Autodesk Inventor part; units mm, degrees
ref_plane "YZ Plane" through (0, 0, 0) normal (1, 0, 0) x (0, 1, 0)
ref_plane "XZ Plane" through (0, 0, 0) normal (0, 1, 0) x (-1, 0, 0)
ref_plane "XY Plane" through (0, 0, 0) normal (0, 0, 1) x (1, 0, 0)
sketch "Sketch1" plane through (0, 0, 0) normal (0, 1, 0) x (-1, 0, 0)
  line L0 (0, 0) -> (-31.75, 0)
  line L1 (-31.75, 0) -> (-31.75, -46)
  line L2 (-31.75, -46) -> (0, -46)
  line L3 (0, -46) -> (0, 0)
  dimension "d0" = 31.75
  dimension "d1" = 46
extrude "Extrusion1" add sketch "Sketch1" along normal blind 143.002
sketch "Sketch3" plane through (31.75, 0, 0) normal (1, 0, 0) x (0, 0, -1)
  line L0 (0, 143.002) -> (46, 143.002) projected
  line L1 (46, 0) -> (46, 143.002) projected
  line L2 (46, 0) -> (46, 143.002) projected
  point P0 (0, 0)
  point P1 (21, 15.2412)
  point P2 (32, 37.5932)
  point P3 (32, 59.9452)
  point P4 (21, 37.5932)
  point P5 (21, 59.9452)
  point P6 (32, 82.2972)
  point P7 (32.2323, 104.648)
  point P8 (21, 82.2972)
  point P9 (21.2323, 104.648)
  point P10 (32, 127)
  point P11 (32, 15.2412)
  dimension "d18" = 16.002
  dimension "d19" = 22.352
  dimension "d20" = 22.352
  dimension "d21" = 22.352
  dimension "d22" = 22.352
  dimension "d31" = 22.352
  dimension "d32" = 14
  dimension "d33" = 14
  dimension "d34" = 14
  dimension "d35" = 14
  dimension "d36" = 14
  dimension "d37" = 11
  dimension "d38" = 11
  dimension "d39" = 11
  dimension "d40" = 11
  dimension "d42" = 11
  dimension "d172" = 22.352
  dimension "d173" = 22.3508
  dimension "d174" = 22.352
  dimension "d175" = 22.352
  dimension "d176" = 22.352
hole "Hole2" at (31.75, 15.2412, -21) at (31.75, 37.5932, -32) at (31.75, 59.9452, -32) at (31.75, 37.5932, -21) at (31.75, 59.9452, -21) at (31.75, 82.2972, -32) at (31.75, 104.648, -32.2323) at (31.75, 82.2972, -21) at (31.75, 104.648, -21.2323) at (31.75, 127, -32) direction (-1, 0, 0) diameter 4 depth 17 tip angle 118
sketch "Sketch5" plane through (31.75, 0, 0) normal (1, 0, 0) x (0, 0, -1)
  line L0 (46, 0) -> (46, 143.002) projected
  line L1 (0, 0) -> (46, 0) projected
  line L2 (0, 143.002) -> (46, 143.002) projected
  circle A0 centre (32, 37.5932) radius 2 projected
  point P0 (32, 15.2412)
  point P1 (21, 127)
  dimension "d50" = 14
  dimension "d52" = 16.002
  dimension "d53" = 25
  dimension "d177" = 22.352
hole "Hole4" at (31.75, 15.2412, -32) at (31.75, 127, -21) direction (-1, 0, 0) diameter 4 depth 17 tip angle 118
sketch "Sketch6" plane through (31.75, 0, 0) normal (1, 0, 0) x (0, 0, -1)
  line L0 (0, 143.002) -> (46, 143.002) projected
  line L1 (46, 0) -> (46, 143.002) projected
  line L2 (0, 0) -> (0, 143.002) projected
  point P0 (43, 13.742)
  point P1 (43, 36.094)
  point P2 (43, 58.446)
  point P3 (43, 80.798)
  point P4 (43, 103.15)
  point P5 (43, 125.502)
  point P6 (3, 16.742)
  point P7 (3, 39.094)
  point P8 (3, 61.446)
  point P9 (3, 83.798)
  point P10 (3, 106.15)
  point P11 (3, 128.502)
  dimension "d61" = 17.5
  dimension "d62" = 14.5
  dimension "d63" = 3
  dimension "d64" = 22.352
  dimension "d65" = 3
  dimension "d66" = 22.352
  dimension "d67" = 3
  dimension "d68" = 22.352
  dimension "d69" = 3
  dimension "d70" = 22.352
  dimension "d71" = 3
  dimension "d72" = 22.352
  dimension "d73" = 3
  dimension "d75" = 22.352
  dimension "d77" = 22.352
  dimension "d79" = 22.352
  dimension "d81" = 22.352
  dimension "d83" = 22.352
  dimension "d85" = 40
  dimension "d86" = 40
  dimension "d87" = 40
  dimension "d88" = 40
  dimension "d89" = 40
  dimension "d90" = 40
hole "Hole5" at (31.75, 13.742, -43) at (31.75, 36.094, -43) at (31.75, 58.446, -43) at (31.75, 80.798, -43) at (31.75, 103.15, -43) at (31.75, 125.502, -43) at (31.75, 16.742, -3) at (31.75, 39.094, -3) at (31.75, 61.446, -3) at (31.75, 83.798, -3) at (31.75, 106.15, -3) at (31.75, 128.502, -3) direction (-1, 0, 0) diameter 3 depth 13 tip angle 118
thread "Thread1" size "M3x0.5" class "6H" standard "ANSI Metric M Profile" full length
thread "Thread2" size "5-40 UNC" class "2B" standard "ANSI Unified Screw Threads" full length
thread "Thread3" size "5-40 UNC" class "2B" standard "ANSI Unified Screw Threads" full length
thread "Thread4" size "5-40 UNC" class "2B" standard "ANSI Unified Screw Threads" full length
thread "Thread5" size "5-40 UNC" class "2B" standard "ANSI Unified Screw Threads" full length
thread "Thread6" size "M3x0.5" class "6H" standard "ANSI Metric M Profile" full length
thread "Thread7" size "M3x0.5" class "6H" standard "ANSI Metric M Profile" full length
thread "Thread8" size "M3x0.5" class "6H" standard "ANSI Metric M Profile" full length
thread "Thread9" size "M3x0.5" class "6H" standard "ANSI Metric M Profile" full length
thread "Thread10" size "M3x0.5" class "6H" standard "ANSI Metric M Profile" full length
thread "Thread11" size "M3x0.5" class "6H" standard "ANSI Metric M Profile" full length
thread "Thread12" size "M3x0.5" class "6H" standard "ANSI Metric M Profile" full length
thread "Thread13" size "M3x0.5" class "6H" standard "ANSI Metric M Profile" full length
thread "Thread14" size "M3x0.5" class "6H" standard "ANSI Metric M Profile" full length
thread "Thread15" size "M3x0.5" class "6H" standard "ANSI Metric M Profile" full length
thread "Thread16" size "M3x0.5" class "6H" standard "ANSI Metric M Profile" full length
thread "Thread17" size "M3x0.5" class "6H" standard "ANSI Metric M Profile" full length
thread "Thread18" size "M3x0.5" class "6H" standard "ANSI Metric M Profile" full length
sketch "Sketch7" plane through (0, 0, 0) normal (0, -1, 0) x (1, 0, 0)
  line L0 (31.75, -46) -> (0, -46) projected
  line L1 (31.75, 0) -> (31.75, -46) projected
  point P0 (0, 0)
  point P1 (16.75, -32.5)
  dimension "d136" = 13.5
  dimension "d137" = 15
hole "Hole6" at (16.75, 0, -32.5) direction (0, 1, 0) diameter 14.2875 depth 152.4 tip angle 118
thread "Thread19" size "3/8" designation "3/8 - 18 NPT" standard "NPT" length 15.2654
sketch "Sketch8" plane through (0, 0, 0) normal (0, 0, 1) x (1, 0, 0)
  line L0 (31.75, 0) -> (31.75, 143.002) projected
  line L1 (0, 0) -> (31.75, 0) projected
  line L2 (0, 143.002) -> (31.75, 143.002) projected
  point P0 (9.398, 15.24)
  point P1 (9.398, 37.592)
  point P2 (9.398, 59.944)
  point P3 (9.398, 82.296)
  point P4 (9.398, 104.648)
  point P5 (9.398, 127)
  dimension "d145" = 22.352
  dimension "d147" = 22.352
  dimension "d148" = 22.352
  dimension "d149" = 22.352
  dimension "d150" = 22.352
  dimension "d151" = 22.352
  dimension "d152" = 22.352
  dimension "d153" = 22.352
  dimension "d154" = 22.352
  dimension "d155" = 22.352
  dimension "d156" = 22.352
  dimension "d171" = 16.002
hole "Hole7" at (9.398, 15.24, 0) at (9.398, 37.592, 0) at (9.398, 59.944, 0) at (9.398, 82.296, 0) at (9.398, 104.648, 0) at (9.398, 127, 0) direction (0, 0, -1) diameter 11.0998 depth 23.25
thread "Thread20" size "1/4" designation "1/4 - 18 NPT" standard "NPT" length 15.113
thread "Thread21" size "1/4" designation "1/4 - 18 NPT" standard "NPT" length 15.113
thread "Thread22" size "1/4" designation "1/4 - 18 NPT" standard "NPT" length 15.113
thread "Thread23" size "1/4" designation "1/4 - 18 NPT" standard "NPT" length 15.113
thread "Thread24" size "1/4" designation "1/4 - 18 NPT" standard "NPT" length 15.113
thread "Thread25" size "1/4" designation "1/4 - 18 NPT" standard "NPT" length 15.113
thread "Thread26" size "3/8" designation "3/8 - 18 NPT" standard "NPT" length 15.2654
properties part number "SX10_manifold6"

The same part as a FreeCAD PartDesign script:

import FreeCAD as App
import Part
import Sketcher
Q = App.Units.Quantity

doc = App.newDocument("Part")
params = doc.addObject("Spreadsheet::Sheet", "Params")
for row, (alias, value) in enumerate([
    ("sketch1_width", "1.25 in"),
    ("pad1_length", "5.63 in"),
    ("hole_diameter", "4 mm"),
    ("hole_depth", "0.6692913 in"),
    ("hole2_diameter", "4 mm"),
    ("hole2_depth", "0.6692913 in"),
    ("hole3_diameter", "0.1181102 in"),
    ("hole3_depth", "0.511811 in"),
    ("sketch5_diameter", "0.5625 in"),
    ("hole4_diameter", "0.5625 in"),
    ("hole4_depth", "6 in"),
    ("sketch6_diameter", "0.437 in"),
    ("hole5_diameter", "0.437 in"),
    ("hole5_depth", "23.25 mm"),
], start=1):
    params.set(f"A{row}", alias)
    params.set(f"B{row}", "=" + value)
    params.setAlias(f"B{row}", alias)

body = doc.addObject("PartDesign::Body", "Body")

sketch1 = body.newObject("Sketcher::SketchObject", "Sketch")
sketch1.AttachmentSupport = (doc.getObject("XZ_Plane"), [""])
sketch1.MapMode = "FlatFace"
sketch1.addGeometry([
    Part.LineSegment(App.Vector(0, -46, 0), App.Vector(0, 0, 0)),
    Part.LineSegment(App.Vector(0, 0, 0), App.Vector(31.75, 0, 0)),
    Part.LineSegment(App.Vector(31.75, 0, 0), App.Vector(31.75, -46, 0)),
    Part.LineSegment(App.Vector(31.75, -46, 0), App.Vector(0, -46, 0)),
], False)
sketch1.addConstraint([
    Sketcher.Constraint("Coincident", 0, 2, 1, 1),
    Sketcher.Constraint("Coincident", 1, 2, 2, 1),
    Sketcher.Constraint("Coincident", 2, 2, 3, 1),
    Sketcher.Constraint("Coincident", 3, 2, 0, 1),
    Sketcher.Constraint("Vertical", 0),
    Sketcher.Constraint("Horizontal", 1),
    Sketcher.Constraint("Vertical", 2),
    Sketcher.Constraint("Horizontal", 3),
    Sketcher.Constraint("Coincident", 0, 2, -1, 1),
    Sketcher.Constraint("DistanceX", 1, 1, 1, 2, Q("1.25 in")),
    Sketcher.Constraint("DistanceY", 0, 1, 0, 2, 46.0),
])
sketch1.setExpression("Constraints[9]", "Params.sketch1_width")
pad1 = body.newObject("PartDesign::Pad", "Pad")
pad1.Profile = sketch1
pad1.setExpression("Length", "Params.pad1_length")
pad1.Reversed = True

sketch2 = body.newObject("Sketcher::SketchObject", "Sketch001")
sketch2.AttachmentSupport = (doc.getObject("YZ_Plane"), [""])
sketch2.MapMode = "FlatFace"
sketch2.AttachmentOffset = App.Placement(App.Vector(0, 0, 1.25 * 25.4), App.Rotation())
sketch2.addGeometry([
    Part.Circle(App.Vector(15.2412, -21, 0), App.Vector(0, 0, 1), 2),
    Part.Circle(App.Vector(37.5932, -32, 0), App.Vector(0, 0, 1), 2),
    Part.Circle(App.Vector(59.9452, -32, 0), App.Vector(0, 0, 1), 2),
    Part.Circle(App.Vector(37.5932, -21, 0), App.Vector(0, 0, 1), 2),
    Part.Circle(App.Vector(59.9452, -21, 0), App.Vector(0, 0, 1), 2),
    Part.Circle(App.Vector(82.2972, -32, 0), App.Vector(0, 0, 1), 2),
    Part.Circle(App.Vector(104.648, -32.2323, 0), App.Vector(0, 0, 1), 2),
    Part.Circle(App.Vector(82.2972, -21, 0), App.Vector(0, 0, 1), 2),
    Part.Circle(App.Vector(104.648, -21.2323, 0), App.Vector(0, 0, 1), 2),
    Part.Circle(App.Vector(127, -32, 0), App.Vector(0, 0, 1), 2),
], False)
sketch2.addConstraint([
    Sketcher.Constraint("Equal", 0, 1),
    Sketcher.Constraint("Equal", 1, 2),
    Sketcher.Constraint("Equal", 2, 3),
    Sketcher.Constraint("Equal", 3, 4),
    Sketcher.Constraint("Equal", 4, 5),
    Sketcher.Constraint("Equal", 5, 6),
    Sketcher.Constraint("Equal", 6, 7),
    Sketcher.Constraint("Equal", 7, 8),
    Sketcher.Constraint("Equal", 8, 9),
    Sketcher.Constraint("Horizontal", 1, 3, 2, 3),
    Sketcher.Constraint("Horizontal", 0, 3, 3, 3),
    Sketcher.Constraint("Horizontal", 3, 3, 4, 3),
    Sketcher.Constraint("Horizontal", 2, 3, 5, 3),
    Sketcher.Constraint("Horizontal", 4, 3, 7, 3),
    Sketcher.Constraint("Horizontal", 5, 3, 9, 3),
    Sketcher.Constraint("Vertical", 1, 3, 3, 3),
    Sketcher.Constraint("Vertical", 2, 3, 4, 3),
    Sketcher.Constraint("Vertical", 5, 3, 7, 3),
    Sketcher.Constraint("Vertical", 6, 3, 8, 3),
    Sketcher.Constraint("DistanceX", -1, 1, 9, 3, Q("5 in")),
    Sketcher.Constraint("Diameter", 0, 4.0),
    Sketcher.Constraint("DistanceX", -1, 1, 6, 3, Q("4.12 in")),
    Sketcher.Constraint("DistanceX", 0, 3, 1, 3, Q("0.88 in")),
    Sketcher.Constraint("DistanceX", 1, 3, 2, 3, Q("0.88 in")),
    Sketcher.Constraint("DistanceX", 2, 3, 5, 3, Q("0.88 in")),
    Sketcher.Constraint("DistanceY", 6, 3, -1, 1, Q("1.269 in")),
    Sketcher.Constraint("DistanceX", -1, 1, 0, 3, 15.2412),
    Sketcher.Constraint("DistanceY", 0, 3, -1, 1, 21.0),
    Sketcher.Constraint("DistanceY", 1, 3, -1, 1, 32.0),
    Sketcher.Constraint("DistanceY", 8, 3, -1, 1, 21.2323),
])
doc.recompute()
hole = body.newObject("PartDesign::Hole", "Hole")
hole.Profile = sketch2
hole.ThreadType = "None"
hole.setExpression("Diameter", "Params.hole_diameter")
hole.DepthType = "Dimension"
hole.setExpression("Depth", "Params.hole_depth")
hole.DrillPoint = "Angled"
hole.DrillPointAngle = 118

sketch3 = body.newObject("Sketcher::SketchObject", "Sketch002")
sketch3.AttachmentSupport = (doc.getObject("YZ_Plane"), [""])
sketch3.MapMode = "FlatFace"
sketch3.AttachmentOffset = App.Placement(App.Vector(0, 0, 1.25 * 25.4), App.Rotation())
sketch3.addGeometry([
    Part.Circle(App.Vector(15.2412, -32, 0), App.Vector(0, 0, 1), 2),
    Part.Circle(App.Vector(127, -21, 0), App.Vector(0, 0, 1), 2),
], False)
sketch3.addConstraint([
    Sketcher.Constraint("Equal", 0, 1),
    Sketcher.Constraint("DistanceX", -1, 1, 1, 3, Q("5 in")),
    Sketcher.Constraint("Diameter", 0, 4.0),
    Sketcher.Constraint("DistanceX", -1, 1, 0, 3, 15.2412),
    Sketcher.Constraint("DistanceY", 0, 3, -1, 1, 32.0),
    Sketcher.Constraint("DistanceY", 1, 3, -1, 1, 21.0),
])
doc.recompute()
hole2 = body.newObject("PartDesign::Hole", "Hole001")
hole2.Profile = sketch3
hole2.ThreadType = "None"
hole2.setExpression("Diameter", "Params.hole2_diameter")
hole2.DepthType = "Dimension"
hole2.setExpression("Depth", "Params.hole2_depth")
hole2.DrillPoint = "Angled"
hole2.DrillPointAngle = 118

sketch4 = body.newObject("Sketcher::SketchObject", "Sketch003")
sketch4.AttachmentSupport = (doc.getObject("YZ_Plane"), [""])
sketch4.MapMode = "FlatFace"
sketch4.AttachmentOffset = App.Placement(App.Vector(0, 0, 1.25 * 25.4), App.Rotation())
sketch4.addGeometry([
    Part.Circle(App.Vector(13.742, -43, 0), App.Vector(0, 0, 1), 1.5),
    Part.Circle(App.Vector(36.094, -43, 0), App.Vector(0, 0, 1), 1.5),
    Part.Circle(App.Vector(58.446, -43, 0), App.Vector(0, 0, 1), 1.5),
    Part.Circle(App.Vector(80.798, -43, 0), App.Vector(0, 0, 1), 1.5),
    Part.Circle(App.Vector(103.15, -43, 0), App.Vector(0, 0, 1), 1.5),
    Part.Circle(App.Vector(125.502, -43, 0), App.Vector(0, 0, 1), 1.5),
    Part.Circle(App.Vector(16.742, -3, 0), App.Vector(0, 0, 1), 1.5),
    Part.Circle(App.Vector(39.094, -3, 0), App.Vector(0, 0, 1), 1.5),
    Part.Circle(App.Vector(61.446, -3, 0), App.Vector(0, 0, 1), 1.5),
    Part.Circle(App.Vector(83.798, -3, 0), App.Vector(0, 0, 1), 1.5),
    Part.Circle(App.Vector(106.15, -3, 0), App.Vector(0, 0, 1), 1.5),
    Part.Circle(App.Vector(128.502, -3, 0), App.Vector(0, 0, 1), 1.5),
], False)
sketch4.addConstraint([
    Sketcher.Constraint("Equal", 0, 1),
    Sketcher.Constraint("Equal", 1, 2),
    Sketcher.Constraint("Equal", 2, 3),
    Sketcher.Constraint("Equal", 3, 4),
    Sketcher.Constraint("Equal", 4, 5),
    Sketcher.Constraint("Equal", 5, 6),
    Sketcher.Constraint("Equal", 6, 7),
    Sketcher.Constraint("Equal", 7, 8),
    Sketcher.Constraint("Equal", 8, 9),
    Sketcher.Constraint("Equal", 9, 10),
    Sketcher.Constraint("Equal", 10, 11),
    Sketcher.Constraint("Horizontal", 0, 3, 1, 3),
    Sketcher.Constraint("Horizontal", 1, 3, 2, 3),
    Sketcher.Constraint("Horizontal", 2, 3, 3, 3),
    Sketcher.Constraint("Horizontal", 3, 3, 4, 3),
    Sketcher.Constraint("Horizontal", 4, 3, 5, 3),
    Sketcher.Constraint("Horizontal", 6, 3, 7, 3),
    Sketcher.Constraint("Horizontal", 7, 3, 8, 3),
    Sketcher.Constraint("Horizontal", 8, 3, 9, 3),
    Sketcher.Constraint("Horizontal", 9, 3, 10, 3),
    Sketcher.Constraint("Horizontal", 10, 3, 11, 3),
    Sketcher.Constraint("Diameter", 0, Q("0.1181 in")),
    Sketcher.Constraint("DistanceX", 0, 3, 5, 3, Q("4.4 in")),
    Sketcher.Constraint("DistanceX", 0, 3, 1, 3, Q("0.88 in")),
    Sketcher.Constraint("DistanceX", 1, 3, 2, 3, Q("0.88 in")),
    Sketcher.Constraint("DistanceX", 2, 3, 3, 3, Q("0.88 in")),
    Sketcher.Constraint("DistanceX", 3, 3, 4, 3, Q("0.88 in")),
    Sketcher.Constraint("DistanceX", 6, 3, 7, 3, Q("0.88 in")),
    Sketcher.Constraint("DistanceX", 7, 3, 8, 3, Q("0.88 in")),
    Sketcher.Constraint("DistanceX", 8, 3, 9, 3, Q("0.88 in")),
    Sketcher.Constraint("DistanceX", 9, 3, 10, 3, Q("0.88 in")),
    Sketcher.Constraint("DistanceX", 10, 3, 11, 3, Q("0.88 in")),
    Sketcher.Constraint("DistanceY", 6, 3, -1, 1, Q("0.1181 in")),
    Sketcher.Constraint("DistanceX", 0, 3, 6, 3, Q("0.1181 in")),
    Sketcher.Constraint("DistanceY", 0, 3, 6, 3, Q("1.5748 in")),
    Sketcher.Constraint("DistanceX", -1, 1, 0, 3, 13.742),
])
doc.recompute()
hole3 = body.newObject("PartDesign::Hole", "Hole002")
hole3.Profile = sketch4
hole3.ThreadType = "None"
hole3.setExpression("Diameter", "Params.hole3_diameter")
hole3.DepthType = "Dimension"
hole3.setExpression("Depth", "Params.hole3_depth")
hole3.DrillPoint = "Angled"
hole3.DrillPointAngle = 118

sketch5 = body.newObject("Sketcher::SketchObject", "Sketch004")
sketch5.AttachmentSupport = (doc.getObject("XZ_Plane"), [""])
sketch5.MapMode = "FlatFace"
sketch5.addGeometry(Part.Circle(App.Vector(16.75, -32.5, 0), App.Vector(0, 0, 1), 7.14375), False)
sketch5.addConstraint([
    Sketcher.Constraint("Diameter", 0, Q("0.5625 in")),
    Sketcher.Constraint("DistanceX", -1, 1, 0, 3, 16.75),
    Sketcher.Constraint("DistanceY", 0, 3, -1, 1, 32.5),
])
sketch5.setExpression("Constraints[0]", "Params.sketch5_diameter")
doc.recompute()
hole4 = body.newObject("PartDesign::Hole", "Hole003")
hole4.Profile = sketch5
hole4.ThreadType = "None"
hole4.setExpression("Diameter", "Params.hole4_diameter")
hole4.DepthType = "Dimension"
hole4.setExpression("Depth", "Params.hole4_depth")
hole4.DrillPoint = "Angled"
hole4.DrillPointAngle = 118

sketch6 = body.newObject("Sketcher::SketchObject", "Sketch005")
sketch6.AttachmentSupport = (doc.getObject("XY_Plane"), [""])
sketch6.MapMode = "FlatFace"
sketch6.addGeometry([
    Part.Circle(App.Vector(9.398, 15.24, 0), App.Vector(0, 0, 1), 5.5499),
    Part.Circle(App.Vector(9.398, 37.592, 0), App.Vector(0, 0, 1), 5.5499),
    Part.Circle(App.Vector(9.398, 59.944, 0), App.Vector(0, 0, 1), 5.5499),
    Part.Circle(App.Vector(9.398, 82.296, 0), App.Vector(0, 0, 1), 5.5499),
    Part.Circle(App.Vector(9.398, 104.648, 0), App.Vector(0, 0, 1), 5.5499),
    Part.Circle(App.Vector(9.398, 127, 0), App.Vector(0, 0, 1), 5.5499),
], False)
sketch6.addConstraint([
    Sketcher.Constraint("Equal", 0, 1),
    Sketcher.Constraint("Equal", 1, 2),
    Sketcher.Constraint("Equal", 2, 3),
    Sketcher.Constraint("Equal", 3, 4),
    Sketcher.Constraint("Equal", 4, 5),
    Sketcher.Constraint("Vertical", 0, 3, 1, 3),
    Sketcher.Constraint("Vertical", 1, 3, 2, 3),
    Sketcher.Constraint("Vertical", 2, 3, 3, 3),
    Sketcher.Constraint("Vertical", 3, 3, 4, 3),
    Sketcher.Constraint("Vertical", 4, 3, 5, 3),
    Sketcher.Constraint("Diameter", 0, Q("0.437 in")),
    Sketcher.Constraint("DistanceY", -1, 1, 5, 3, Q("5 in")),
    Sketcher.Constraint("DistanceY", -1, 1, 0, 3, Q("0.6 in")),
    Sketcher.Constraint("DistanceX", -1, 1, 0, 3, Q("0.37 in")),
    Sketcher.Constraint("DistanceY", -1, 1, 1, 3, Q("1.48 in")),
    Sketcher.Constraint("DistanceY", -1, 1, 2, 3, Q("2.36 in")),
    Sketcher.Constraint("DistanceY", -1, 1, 3, 3, Q("3.24 in")),
    Sketcher.Constraint("DistanceY", -1, 1, 4, 3, Q("4.12 in")),
])
sketch6.setExpression("Constraints[10]", "Params.sketch6_diameter")
doc.recompute()
hole5 = body.newObject("PartDesign::Hole", "Hole004")
hole5.Profile = sketch6
hole5.ThreadType = "None"
hole5.setExpression("Diameter", "Params.hole5_diameter")
hole5.DepthType = "Dimension"
hole5.setExpression("Depth", "Params.hole5_depth")
hole5.DrillPoint = "Flat"

doc.recompute()
